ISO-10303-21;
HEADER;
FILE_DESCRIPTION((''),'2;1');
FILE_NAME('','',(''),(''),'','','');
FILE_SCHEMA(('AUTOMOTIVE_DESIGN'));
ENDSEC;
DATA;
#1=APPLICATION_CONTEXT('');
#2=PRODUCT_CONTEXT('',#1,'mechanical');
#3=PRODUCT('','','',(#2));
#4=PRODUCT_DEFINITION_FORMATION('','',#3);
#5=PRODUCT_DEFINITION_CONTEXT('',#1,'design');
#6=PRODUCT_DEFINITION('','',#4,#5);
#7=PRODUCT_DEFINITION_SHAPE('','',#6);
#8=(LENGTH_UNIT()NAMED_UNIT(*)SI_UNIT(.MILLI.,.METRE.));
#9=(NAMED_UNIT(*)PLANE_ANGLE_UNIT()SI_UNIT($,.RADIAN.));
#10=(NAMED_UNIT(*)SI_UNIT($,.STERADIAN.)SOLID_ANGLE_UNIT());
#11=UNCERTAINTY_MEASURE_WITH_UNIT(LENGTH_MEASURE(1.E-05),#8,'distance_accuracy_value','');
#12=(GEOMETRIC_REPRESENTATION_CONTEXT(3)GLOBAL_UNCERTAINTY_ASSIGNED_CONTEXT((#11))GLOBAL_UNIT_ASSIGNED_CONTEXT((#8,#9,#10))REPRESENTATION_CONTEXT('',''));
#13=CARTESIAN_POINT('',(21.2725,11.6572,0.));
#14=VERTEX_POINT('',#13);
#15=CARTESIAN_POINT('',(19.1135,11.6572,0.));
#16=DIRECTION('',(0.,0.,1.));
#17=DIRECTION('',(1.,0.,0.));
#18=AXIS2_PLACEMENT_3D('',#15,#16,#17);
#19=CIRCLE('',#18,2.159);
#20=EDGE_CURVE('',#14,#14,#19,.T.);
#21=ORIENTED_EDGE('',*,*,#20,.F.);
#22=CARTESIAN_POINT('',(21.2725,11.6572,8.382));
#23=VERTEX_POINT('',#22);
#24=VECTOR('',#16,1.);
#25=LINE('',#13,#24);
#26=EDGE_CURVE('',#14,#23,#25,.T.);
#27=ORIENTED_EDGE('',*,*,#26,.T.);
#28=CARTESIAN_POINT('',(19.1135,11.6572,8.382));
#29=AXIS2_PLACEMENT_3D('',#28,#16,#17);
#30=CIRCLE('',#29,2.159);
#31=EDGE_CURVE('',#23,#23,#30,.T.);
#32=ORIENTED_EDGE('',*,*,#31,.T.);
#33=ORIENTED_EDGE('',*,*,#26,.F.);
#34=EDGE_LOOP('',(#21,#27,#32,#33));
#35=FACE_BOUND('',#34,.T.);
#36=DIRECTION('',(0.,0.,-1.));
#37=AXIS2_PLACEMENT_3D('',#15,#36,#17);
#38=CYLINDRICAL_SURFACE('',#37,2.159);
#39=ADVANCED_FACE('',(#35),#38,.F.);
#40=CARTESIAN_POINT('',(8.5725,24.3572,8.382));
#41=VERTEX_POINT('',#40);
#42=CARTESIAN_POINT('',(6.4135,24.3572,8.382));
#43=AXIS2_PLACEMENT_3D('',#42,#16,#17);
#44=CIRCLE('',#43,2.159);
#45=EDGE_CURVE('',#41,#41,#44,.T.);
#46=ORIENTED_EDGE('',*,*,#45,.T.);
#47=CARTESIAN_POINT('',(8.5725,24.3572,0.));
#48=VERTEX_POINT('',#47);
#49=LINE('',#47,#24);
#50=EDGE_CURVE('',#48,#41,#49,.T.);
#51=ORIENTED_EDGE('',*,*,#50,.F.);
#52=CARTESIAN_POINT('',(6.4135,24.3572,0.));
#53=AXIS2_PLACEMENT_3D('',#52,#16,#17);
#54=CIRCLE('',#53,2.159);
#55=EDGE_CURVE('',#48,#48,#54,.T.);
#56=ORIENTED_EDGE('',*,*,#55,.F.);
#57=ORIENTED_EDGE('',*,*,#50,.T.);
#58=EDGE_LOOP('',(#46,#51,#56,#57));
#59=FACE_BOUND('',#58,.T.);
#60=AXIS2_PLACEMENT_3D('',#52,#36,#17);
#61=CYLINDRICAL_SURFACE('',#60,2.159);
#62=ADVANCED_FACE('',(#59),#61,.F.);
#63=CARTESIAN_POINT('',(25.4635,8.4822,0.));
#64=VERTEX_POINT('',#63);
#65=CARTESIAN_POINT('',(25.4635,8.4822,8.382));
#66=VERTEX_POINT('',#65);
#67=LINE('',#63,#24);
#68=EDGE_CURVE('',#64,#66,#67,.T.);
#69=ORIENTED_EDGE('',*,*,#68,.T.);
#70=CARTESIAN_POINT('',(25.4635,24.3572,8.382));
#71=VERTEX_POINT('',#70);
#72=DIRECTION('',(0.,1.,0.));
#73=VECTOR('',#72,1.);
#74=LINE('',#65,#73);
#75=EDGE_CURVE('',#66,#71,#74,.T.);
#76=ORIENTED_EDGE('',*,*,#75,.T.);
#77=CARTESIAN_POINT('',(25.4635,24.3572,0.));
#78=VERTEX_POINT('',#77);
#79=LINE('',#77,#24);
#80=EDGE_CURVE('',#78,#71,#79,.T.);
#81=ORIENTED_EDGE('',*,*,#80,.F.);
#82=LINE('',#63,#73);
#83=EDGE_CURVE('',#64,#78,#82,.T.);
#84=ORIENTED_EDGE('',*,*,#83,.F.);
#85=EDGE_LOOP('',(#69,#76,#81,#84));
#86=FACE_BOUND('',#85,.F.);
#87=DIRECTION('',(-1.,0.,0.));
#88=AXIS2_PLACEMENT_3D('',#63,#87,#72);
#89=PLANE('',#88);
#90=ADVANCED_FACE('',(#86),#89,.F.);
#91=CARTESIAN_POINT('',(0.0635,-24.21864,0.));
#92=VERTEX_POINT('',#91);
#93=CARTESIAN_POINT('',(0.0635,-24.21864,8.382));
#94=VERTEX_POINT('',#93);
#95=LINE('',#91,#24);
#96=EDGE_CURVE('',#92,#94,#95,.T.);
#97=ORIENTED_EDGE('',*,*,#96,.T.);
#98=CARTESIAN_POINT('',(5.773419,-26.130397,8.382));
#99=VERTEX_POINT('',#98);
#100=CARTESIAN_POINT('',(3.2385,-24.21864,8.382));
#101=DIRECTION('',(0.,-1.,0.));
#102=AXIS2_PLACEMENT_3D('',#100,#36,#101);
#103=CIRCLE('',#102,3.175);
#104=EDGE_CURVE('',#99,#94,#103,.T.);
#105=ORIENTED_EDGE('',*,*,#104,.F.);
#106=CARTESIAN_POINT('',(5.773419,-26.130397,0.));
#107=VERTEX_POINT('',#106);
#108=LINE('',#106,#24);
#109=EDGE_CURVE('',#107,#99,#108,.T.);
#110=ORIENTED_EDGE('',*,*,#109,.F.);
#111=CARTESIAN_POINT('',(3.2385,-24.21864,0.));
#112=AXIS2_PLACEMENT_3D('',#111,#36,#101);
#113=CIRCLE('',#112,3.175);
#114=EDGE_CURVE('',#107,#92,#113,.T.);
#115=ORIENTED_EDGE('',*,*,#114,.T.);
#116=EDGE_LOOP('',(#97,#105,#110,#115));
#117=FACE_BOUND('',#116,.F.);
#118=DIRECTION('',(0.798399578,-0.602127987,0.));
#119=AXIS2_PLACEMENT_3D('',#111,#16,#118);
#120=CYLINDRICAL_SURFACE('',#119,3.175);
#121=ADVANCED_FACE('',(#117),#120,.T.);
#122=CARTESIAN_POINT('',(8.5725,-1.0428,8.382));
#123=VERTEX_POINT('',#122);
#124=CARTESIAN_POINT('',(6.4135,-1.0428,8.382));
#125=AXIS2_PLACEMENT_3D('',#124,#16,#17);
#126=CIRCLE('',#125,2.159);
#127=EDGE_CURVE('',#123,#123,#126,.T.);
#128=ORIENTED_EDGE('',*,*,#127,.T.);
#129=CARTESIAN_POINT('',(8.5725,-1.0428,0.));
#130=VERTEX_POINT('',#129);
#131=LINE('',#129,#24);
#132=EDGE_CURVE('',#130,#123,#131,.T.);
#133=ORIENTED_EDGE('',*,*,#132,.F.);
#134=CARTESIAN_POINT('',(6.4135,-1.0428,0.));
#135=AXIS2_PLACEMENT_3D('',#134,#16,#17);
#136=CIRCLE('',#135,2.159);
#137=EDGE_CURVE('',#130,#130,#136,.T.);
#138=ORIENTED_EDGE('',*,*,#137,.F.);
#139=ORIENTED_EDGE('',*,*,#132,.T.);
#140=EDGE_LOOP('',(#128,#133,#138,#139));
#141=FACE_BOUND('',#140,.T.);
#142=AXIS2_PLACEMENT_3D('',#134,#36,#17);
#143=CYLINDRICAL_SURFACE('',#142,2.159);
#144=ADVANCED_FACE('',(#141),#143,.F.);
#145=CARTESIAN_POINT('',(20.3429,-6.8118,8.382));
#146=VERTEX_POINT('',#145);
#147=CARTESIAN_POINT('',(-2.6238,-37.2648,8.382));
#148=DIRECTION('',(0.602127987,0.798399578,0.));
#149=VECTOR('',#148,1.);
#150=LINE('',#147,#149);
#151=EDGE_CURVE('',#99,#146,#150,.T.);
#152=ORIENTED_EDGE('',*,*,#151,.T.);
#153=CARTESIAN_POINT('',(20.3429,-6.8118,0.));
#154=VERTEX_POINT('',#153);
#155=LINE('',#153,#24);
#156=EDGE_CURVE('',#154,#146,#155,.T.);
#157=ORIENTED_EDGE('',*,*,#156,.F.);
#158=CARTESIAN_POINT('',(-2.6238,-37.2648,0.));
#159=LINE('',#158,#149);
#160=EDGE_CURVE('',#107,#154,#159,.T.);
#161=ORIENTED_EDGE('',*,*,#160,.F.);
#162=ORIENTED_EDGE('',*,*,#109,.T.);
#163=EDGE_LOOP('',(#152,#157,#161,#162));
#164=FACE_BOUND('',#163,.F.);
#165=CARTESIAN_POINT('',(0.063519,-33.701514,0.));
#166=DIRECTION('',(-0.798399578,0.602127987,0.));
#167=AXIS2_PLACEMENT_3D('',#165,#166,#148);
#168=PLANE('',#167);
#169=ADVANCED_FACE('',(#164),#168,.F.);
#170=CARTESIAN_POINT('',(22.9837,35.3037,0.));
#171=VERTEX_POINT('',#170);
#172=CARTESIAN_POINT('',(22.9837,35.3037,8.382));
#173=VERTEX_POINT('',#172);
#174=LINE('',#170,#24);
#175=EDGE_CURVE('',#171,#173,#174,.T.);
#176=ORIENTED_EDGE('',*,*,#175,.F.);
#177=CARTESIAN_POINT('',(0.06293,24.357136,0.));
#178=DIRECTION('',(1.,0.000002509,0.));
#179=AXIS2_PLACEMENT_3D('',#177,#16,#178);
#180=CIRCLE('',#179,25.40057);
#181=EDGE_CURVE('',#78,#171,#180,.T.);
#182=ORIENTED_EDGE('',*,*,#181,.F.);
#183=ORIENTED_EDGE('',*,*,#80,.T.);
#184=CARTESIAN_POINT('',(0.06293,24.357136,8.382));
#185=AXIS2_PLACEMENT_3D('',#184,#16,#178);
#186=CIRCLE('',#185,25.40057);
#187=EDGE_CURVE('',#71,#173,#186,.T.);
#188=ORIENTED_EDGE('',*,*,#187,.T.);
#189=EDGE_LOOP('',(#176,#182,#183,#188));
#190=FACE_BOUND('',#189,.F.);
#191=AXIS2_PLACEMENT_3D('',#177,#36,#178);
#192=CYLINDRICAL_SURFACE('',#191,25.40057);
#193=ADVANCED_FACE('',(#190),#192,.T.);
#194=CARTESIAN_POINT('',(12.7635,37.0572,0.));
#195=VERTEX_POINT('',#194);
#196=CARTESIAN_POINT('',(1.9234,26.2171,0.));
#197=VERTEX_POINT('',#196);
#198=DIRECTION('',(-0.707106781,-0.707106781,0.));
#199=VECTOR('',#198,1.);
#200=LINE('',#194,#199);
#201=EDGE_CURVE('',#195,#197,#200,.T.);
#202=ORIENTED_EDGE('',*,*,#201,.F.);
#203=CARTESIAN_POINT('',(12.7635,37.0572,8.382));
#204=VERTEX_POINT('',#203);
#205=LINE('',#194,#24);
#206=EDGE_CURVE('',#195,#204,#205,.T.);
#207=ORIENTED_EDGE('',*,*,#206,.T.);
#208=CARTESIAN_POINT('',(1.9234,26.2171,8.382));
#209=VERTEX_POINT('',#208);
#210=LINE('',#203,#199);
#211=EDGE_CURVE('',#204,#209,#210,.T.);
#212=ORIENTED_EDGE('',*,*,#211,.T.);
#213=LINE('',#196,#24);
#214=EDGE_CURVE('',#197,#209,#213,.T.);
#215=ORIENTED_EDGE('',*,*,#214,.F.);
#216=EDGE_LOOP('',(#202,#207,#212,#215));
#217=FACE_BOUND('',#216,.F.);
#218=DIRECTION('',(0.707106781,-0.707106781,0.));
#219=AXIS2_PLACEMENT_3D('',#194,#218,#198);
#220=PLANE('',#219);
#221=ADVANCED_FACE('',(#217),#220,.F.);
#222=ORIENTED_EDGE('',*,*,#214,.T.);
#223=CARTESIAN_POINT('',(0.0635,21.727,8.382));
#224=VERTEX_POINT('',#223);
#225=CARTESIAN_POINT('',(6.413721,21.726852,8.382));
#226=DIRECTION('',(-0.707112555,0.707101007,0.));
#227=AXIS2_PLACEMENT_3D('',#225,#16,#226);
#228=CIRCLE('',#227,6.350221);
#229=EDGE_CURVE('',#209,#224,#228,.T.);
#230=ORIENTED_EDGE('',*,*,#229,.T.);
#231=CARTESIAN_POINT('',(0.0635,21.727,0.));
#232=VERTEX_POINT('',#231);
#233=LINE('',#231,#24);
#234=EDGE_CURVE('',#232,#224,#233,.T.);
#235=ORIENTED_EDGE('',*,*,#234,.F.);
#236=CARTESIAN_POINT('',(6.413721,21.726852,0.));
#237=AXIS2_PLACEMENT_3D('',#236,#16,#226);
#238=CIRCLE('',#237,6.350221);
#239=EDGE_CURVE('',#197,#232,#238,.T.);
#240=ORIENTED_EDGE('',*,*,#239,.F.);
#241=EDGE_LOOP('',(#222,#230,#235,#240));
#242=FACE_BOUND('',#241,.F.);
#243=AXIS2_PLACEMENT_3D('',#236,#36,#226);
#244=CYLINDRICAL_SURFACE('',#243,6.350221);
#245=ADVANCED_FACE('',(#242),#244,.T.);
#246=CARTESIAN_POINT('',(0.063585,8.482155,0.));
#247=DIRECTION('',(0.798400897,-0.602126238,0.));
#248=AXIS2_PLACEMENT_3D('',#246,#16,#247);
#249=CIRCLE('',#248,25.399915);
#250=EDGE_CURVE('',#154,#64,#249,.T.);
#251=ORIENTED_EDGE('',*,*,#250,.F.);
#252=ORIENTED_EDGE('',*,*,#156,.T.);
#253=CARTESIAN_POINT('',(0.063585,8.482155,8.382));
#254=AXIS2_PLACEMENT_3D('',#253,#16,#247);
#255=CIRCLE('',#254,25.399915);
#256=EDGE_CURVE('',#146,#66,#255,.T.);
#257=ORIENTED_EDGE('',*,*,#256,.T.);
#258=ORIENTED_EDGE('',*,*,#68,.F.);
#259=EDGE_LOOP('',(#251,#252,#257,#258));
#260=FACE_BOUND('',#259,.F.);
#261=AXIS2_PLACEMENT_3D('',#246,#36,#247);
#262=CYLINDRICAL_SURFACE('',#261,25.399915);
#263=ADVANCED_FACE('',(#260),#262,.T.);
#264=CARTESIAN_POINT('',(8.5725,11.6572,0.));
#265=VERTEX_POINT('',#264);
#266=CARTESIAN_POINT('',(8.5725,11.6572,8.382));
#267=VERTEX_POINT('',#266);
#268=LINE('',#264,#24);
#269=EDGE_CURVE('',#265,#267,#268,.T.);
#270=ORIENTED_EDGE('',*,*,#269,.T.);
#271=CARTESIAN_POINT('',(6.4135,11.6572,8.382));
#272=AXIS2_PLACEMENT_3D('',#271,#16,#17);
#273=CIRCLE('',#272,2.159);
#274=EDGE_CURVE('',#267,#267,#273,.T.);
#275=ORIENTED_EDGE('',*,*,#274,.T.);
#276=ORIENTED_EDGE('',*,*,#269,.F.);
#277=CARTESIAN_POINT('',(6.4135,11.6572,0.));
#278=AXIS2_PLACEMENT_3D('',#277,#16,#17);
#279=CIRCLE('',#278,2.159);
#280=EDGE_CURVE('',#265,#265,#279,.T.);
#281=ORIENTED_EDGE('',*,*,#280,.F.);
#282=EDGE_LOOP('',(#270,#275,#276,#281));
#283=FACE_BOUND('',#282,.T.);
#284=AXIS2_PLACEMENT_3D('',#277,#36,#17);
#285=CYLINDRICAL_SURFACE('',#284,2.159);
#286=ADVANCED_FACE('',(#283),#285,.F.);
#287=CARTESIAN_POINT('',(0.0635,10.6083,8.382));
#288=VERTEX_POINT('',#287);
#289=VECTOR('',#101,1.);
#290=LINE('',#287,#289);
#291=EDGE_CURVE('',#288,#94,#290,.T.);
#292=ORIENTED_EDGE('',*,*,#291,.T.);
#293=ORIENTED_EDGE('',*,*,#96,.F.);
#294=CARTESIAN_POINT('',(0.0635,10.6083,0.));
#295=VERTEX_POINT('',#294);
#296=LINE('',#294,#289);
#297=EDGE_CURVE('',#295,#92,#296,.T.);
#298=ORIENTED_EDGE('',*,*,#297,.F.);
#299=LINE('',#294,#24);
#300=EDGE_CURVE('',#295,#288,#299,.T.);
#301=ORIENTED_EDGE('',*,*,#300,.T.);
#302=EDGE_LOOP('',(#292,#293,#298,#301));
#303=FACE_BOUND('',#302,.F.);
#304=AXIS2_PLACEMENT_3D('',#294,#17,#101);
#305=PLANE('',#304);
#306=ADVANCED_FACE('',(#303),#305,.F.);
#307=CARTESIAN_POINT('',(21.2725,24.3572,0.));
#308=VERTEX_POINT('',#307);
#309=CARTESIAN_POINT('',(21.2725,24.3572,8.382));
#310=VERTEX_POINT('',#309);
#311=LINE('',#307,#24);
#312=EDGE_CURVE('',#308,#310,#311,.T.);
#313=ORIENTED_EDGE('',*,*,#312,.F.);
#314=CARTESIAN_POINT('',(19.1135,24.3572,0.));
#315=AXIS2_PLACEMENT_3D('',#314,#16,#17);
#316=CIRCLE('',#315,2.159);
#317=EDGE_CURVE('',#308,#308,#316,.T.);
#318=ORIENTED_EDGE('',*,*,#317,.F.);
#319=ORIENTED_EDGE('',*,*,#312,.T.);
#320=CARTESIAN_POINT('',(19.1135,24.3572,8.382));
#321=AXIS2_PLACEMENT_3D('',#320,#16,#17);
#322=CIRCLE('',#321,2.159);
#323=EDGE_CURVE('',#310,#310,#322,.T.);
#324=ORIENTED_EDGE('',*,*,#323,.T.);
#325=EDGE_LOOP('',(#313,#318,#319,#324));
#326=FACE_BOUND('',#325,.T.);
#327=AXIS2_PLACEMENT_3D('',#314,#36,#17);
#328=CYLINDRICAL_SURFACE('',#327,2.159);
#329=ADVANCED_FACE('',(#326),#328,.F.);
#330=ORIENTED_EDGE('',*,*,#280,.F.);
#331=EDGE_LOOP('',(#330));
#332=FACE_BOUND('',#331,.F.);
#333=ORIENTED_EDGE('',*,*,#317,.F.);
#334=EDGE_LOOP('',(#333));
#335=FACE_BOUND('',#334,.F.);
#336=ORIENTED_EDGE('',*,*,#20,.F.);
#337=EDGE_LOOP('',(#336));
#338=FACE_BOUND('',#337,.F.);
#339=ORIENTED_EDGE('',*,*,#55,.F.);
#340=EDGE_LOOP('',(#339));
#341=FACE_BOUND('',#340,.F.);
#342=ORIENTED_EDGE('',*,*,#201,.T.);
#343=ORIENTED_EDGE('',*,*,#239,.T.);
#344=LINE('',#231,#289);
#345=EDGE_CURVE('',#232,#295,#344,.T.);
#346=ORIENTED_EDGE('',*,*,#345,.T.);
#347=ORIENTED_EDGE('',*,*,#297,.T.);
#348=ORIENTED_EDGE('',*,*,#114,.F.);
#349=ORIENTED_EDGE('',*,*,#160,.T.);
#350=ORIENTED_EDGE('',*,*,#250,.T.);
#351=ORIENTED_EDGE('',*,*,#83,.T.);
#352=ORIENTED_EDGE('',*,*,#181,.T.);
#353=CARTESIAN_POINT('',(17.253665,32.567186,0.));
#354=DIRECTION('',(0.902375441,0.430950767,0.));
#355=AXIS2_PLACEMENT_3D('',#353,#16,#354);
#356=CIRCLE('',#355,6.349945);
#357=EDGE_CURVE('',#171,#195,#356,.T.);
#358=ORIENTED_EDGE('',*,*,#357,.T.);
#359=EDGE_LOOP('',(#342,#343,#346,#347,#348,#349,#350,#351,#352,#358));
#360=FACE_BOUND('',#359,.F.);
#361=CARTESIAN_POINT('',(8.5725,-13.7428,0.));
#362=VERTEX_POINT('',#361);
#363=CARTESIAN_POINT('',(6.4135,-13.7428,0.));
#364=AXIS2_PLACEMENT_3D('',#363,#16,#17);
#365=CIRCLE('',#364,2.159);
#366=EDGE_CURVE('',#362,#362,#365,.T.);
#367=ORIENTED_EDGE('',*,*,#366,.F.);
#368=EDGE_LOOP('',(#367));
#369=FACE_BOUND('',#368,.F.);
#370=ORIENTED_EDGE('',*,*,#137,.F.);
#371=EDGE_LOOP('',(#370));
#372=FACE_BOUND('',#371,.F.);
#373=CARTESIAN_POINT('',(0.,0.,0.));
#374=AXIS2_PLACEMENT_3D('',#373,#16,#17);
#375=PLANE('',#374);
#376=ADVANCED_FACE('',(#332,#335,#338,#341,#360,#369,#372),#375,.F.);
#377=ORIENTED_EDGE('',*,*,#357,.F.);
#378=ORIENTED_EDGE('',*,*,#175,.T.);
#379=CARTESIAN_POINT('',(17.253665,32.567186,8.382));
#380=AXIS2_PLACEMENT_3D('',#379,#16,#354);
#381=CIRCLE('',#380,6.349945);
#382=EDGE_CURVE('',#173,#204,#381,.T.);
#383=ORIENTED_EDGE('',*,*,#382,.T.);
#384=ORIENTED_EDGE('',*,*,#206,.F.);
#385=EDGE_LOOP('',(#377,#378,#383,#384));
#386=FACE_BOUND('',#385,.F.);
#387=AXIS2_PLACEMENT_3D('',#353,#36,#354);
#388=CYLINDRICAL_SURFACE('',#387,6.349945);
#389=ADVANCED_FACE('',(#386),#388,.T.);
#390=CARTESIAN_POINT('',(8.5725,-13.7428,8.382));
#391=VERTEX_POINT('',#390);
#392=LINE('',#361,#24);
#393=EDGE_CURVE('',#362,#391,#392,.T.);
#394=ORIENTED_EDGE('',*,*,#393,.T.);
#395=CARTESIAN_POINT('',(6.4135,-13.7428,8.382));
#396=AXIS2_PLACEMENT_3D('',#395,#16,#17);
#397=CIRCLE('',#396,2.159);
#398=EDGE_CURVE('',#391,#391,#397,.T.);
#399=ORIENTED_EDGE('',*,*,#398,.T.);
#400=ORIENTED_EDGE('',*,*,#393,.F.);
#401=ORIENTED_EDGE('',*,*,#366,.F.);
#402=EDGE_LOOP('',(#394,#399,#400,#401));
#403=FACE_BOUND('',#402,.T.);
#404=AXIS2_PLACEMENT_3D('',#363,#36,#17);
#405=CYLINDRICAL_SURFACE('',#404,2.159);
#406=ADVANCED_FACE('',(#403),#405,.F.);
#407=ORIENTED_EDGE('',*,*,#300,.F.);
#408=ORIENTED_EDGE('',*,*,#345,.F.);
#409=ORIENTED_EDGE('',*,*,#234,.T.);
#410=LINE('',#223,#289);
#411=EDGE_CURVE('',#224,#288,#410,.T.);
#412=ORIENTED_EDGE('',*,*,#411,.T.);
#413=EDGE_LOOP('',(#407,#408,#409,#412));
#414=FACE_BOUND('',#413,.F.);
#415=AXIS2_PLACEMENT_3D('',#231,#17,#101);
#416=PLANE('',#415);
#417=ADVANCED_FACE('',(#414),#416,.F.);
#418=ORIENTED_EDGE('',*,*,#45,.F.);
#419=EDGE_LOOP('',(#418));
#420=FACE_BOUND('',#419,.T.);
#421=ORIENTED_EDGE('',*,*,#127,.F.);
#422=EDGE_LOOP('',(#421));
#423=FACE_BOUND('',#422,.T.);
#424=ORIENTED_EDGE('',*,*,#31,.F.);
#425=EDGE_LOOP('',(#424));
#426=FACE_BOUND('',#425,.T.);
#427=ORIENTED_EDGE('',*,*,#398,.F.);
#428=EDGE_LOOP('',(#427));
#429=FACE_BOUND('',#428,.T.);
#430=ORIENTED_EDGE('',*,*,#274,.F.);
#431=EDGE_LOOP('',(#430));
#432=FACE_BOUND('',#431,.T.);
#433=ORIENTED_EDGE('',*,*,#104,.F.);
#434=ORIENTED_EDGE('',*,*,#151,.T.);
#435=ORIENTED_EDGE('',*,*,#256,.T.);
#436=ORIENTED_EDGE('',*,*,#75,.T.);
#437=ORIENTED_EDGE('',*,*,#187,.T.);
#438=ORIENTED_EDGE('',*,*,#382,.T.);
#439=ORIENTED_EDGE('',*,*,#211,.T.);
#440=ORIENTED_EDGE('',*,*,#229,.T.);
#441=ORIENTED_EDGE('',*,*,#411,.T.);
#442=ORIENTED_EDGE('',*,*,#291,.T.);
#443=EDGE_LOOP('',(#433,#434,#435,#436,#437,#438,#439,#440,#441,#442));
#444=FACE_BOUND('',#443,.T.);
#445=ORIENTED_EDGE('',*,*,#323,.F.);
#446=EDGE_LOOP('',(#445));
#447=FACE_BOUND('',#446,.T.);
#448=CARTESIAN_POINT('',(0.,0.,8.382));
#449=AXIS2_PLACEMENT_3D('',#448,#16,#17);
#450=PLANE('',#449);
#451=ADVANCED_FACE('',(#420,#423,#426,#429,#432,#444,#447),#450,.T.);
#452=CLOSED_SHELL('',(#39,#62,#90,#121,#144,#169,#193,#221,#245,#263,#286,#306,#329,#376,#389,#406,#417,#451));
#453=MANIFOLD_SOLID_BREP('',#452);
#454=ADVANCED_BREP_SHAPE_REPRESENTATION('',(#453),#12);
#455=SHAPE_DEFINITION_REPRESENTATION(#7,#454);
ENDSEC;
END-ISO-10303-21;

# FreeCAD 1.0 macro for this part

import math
import FreeCAD as App
import Part
import Sketcher

V = App.Vector
Q = App.Units.Quantity


def edges_at(feature, points):
    """Names of the edges that pass closest to the given points."""
    edges = feature.Shape.Edges
    near = lambda p: min(range(len(edges)), key=lambda i: edges[i].distToShape(Part.Vertex(*p))[0])
    return sorted({f"Edge{near(p) + 1}" for p in points})

doc = App.newDocument("Part")
body = doc.addObject("PartDesign::Body", "Body")

# Sketch on XY plane
sketch1 = doc.addObject("Sketcher::SketchObject", "Sketch")
body.addObject(sketch1)
sketch1.AttachmentSupport = (doc.XY_Plane, [""])
sketch1.MapMode = "FlatFace"
sketch1.addGeometry([
    Part.LineSegment(V(12.8, 37.1, 0), V(1.9, 26.2, 0)),  # 0
    Part.ArcOfCircle(Part.Circle(V(6.4, 21.7, 0), V(0, 0, 1), 6.3), math.radians(135), math.radians(180)),  # 1
    Part.LineSegment(V(0.1, 21.7, 0), V(0.1, -33.7, 0)),  # 2
    Part.LineSegment(V(0.1, -33.7, 0), V(20.3, -6.8, 0)),  # 3
    Part.ArcOfCircle(Part.Circle(V(0.1, 8.5, 0), V(0, 0, 1), 25.4), math.radians(-37), math.radians(0)),  # 4
    Part.LineSegment(V(25.5, 8.5, 0), V(25.5, 24.4, 0)),  # 5
    Part.ArcOfCircle(Part.Circle(V(0.1, 24.4, 0), V(0, 0, 1), 25.4), math.radians(0), math.radians(26)),  # 6
    Part.ArcOfCircle(Part.Circle(V(17.3, 32.6, 0), V(0, 0, 1), 6.4), math.radians(26), math.radians(135)),  # 7
    Part.Circle(V(6.4, -13.7, 0), V(0, 0, 1), 2.2),  # 8
    Part.Circle(V(6.4, -1, 0), V(0, 0, 1), 2.2),  # 9
    Part.Circle(V(6.4, 11.7, 0), V(0, 0, 1), 2.2),  # 10
    Part.Circle(V(19.1, 11.7, 0), V(0, 0, 1), 2.2),  # 11
    Part.Circle(V(6.4, 24.4, 0), V(0, 0, 1), 2.2),  # 12
    Part.Circle(V(19.1, 24.4, 0), V(0, 0, 1), 2.2),  # 13
], False)
sketch1.addConstraint([
    Sketcher.Constraint("Tangent", 0, 2, 1, 1),
    Sketcher.Constraint("Tangent", 1, 2, 2, 1),
    Sketcher.Constraint("Coincident", 2, 2, 3, 1),
    Sketcher.Constraint("Tangent", 3, 2, 4, 1),
    Sketcher.Constraint("Tangent", 4, 2, 5, 1),
    Sketcher.Constraint("Tangent", 5, 2, 6, 1),
    Sketcher.Constraint("Tangent", 6, 2, 7, 1),
    Sketcher.Constraint("Tangent", 7, 2, 0, 1),
    Sketcher.Constraint("Vertical", 2),
    Sketcher.Constraint("Vertical", 5),
    Sketcher.Constraint("Equal", 4, 6),
    Sketcher.Constraint("Equal", 1, 7),
    Sketcher.Constraint("Equal", 8, 9),
    Sketcher.Constraint("Equal", 9, 10),
    Sketcher.Constraint("Equal", 10, 11),
    Sketcher.Constraint("Equal", 11, 12),
    Sketcher.Constraint("Equal", 12, 13),
    Sketcher.Constraint("Horizontal", 10, 3, 11, 3),
    Sketcher.Constraint("Horizontal", 6, 3, 12, 3),
    Sketcher.Constraint("Horizontal", 12, 3, 13, 3),
    Sketcher.Constraint("Vertical", 1, 3, 8, 3),
    Sketcher.Constraint("Vertical", 8, 3, 9, 3),
    Sketcher.Constraint("Vertical", 9, 3, 10, 3),
    Sketcher.Constraint("Vertical", 10, 3, 12, 3),
    Sketcher.Constraint("Vertical", 11, 3, 13, 3),
    Sketcher.Constraint("Vertical", 6, 3, 1, 2),
    Sketcher.Constraint("Radius", 4, Q("1 in")),
    Sketcher.Constraint("Diameter", 8, Q("0.17 in")),
    Sketcher.Constraint("Radius", 1, Q("0.25 in")),
    Sketcher.Constraint("Angle", 0, Q("-135 deg")),
    Sketcher.Constraint("DistanceY", 9, 3, 6, 3, Q("1 in")),
    Sketcher.Constraint("DistanceY", 8, 3, 6, 3, Q("1.5 in")),
    Sketcher.Constraint("DistanceY", 9, 3, 10, 3, Q("0.5 in")),
    Sketcher.Constraint("DistanceX", 10, 3, 11, 3, Q("0.5 in")),
    Sketcher.Constraint("DistanceY", 12, 3, 7, 2, Q("0.5 in")),
    Sketcher.Constraint("DistanceY", 5, 1, 5, 2, Q("0.625 in")),
    Sketcher.Constraint("DistanceY", 2, 2, 2, 1, Q("55.4285 mm")),
    Sketcher.Constraint("DistanceX", -1, 1, 1, 3, Q("0.2525 in")),
    Sketcher.Constraint("DistanceY", -1, 1, 1, 3, Q("0.8554 in")),
])
pad1 = doc.addObject("PartDesign::Pad", "Pad")
body.addObject(pad1)
pad1.Profile = sketch1
pad1.Length = Q("0.33 in")
doc.recompute()

fillet = doc.addObject("PartDesign::Fillet", "Fillet")
body.addObject(fillet)
fillet.Base = (pad1, edges_at(pad1, [(0.064, -33.702, 4.191)]))
fillet.Radius = Q("0.125 in")

doc.recompute()
